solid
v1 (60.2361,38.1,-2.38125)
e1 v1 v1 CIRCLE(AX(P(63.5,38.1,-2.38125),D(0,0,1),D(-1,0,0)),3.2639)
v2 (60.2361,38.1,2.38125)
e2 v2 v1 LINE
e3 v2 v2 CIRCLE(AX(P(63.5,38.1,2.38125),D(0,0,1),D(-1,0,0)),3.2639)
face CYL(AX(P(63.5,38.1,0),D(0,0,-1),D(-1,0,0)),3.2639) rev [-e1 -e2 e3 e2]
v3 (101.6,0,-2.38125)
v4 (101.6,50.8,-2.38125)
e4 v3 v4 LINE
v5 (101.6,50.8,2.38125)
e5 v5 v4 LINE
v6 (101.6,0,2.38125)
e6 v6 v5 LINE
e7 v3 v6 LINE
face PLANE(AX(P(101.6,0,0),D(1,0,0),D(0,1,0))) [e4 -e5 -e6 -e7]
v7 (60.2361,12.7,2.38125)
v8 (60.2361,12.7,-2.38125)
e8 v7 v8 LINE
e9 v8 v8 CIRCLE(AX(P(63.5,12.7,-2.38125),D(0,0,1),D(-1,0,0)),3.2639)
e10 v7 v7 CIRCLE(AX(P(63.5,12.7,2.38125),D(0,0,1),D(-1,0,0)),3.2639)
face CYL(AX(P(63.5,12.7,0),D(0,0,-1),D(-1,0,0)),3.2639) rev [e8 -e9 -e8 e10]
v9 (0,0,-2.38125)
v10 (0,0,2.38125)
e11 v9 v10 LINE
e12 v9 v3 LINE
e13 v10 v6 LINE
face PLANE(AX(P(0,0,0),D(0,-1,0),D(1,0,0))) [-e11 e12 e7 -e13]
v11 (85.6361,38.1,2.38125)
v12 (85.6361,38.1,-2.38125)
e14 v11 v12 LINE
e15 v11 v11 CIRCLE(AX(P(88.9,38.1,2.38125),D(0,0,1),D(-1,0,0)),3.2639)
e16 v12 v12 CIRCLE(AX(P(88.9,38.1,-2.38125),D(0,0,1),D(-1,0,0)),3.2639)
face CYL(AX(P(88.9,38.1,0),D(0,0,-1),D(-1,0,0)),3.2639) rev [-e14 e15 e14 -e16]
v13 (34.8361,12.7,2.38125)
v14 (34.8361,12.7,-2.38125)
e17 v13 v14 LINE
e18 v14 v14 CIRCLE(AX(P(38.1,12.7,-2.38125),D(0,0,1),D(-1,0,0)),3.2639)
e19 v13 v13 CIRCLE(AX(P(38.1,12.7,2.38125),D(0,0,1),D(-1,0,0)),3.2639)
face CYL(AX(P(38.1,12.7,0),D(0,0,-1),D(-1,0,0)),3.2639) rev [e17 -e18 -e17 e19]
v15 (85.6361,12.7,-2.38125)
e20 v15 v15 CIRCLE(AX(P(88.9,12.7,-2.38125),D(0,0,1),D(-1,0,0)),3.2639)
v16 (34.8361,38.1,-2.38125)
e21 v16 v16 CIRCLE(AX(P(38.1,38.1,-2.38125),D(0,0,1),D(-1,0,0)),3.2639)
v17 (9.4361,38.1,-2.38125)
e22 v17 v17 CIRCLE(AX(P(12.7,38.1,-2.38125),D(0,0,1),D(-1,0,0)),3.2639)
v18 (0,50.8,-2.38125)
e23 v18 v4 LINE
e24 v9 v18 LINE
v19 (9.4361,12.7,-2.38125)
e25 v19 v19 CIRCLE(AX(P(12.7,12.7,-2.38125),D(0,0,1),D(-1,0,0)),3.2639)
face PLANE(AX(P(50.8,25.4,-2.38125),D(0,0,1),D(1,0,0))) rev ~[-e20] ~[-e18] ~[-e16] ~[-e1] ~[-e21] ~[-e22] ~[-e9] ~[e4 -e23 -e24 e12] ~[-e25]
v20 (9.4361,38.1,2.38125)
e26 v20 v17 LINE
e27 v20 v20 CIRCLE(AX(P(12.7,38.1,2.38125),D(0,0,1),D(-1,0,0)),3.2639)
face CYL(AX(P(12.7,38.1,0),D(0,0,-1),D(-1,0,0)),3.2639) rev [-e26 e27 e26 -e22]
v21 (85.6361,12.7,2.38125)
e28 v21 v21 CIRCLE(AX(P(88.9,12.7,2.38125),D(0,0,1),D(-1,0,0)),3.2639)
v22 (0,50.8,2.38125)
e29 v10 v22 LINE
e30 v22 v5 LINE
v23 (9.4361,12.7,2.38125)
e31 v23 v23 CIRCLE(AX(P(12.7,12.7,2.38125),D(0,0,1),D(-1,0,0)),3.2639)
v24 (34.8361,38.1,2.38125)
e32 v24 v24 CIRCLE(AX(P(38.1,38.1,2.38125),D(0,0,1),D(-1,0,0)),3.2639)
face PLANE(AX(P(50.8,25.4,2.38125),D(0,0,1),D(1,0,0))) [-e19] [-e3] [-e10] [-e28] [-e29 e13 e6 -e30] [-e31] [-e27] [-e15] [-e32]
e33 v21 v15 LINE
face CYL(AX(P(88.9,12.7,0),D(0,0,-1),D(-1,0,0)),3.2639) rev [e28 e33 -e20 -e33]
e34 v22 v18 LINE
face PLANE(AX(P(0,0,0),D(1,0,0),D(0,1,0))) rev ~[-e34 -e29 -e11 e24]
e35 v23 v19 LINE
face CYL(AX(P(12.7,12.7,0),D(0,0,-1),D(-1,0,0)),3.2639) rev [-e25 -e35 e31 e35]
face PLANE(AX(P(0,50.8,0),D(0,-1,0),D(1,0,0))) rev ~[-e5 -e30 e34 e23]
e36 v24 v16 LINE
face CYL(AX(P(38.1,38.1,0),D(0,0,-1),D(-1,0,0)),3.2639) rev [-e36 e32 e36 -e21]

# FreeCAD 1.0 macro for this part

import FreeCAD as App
import Part
import Sketcher
Q = App.Units.Quantity

doc = App.newDocument("Part")
body = doc.addObject("PartDesign::Body", "Body")

sketch1 = doc.addObject("Sketcher::SketchObject", "Sketch")
body.addObject(sketch1)
sketch1.AttachmentSupport = (doc.XY_Plane, [""])
sketch1.MapMode = "FlatFace"
sketch1.addGeometry([
    Part.LineSegment(App.Vector(0, 50.8, 0), App.Vector(0, 0, 0)),
    Part.LineSegment(App.Vector(0, 0, 0), App.Vector(101.6, 0, 0)),
    Part.LineSegment(App.Vector(101.6, 0, 0), App.Vector(101.6, 50.8, 0)),
    Part.LineSegment(App.Vector(101.6, 50.8, 0), App.Vector(0, 50.8, 0)),
    Part.Circle(App.Vector(12.7, 12.7, 0), App.Vector(0, 0, 1), 3.3),
    Part.Circle(App.Vector(38.1, 12.7, 0), App.Vector(0, 0, 1), 3.3),
    Part.Circle(App.Vector(63.5, 12.7, 0), App.Vector(0, 0, 1), 3.3),
    Part.Circle(App.Vector(88.9, 12.7, 0), App.Vector(0, 0, 1), 3.3),
    Part.Circle(App.Vector(12.7, 38.1, 0), App.Vector(0, 0, 1), 3.3),
    Part.Circle(App.Vector(38.1, 38.1, 0), App.Vector(0, 0, 1), 3.3),
    Part.Circle(App.Vector(63.5, 38.1, 0), App.Vector(0, 0, 1), 3.3),
    Part.Circle(App.Vector(88.9, 38.1, 0), App.Vector(0, 0, 1), 3.3),
], False)
sketch1.addConstraint([
    Sketcher.Constraint("Coincident", 0, 2, 1, 1),
    Sketcher.Constraint("Coincident", 1, 2, 2, 1),
    Sketcher.Constraint("Coincident", 2, 2, 3, 1),
    Sketcher.Constraint("Coincident", 3, 2, 0, 1),
    Sketcher.Constraint("Vertical", 0),
    Sketcher.Constraint("Horizontal", 1),
    Sketcher.Constraint("Vertical", 2),
    Sketcher.Constraint("Horizontal", 3),
    Sketcher.Constraint("Coincident", 0, 2, -1, 1),
    Sketcher.Constraint("Equal", 4, 5),
    Sketcher.Constraint("Equal", 5, 6),
    Sketcher.Constraint("Equal", 6, 7),
    Sketcher.Constraint("Equal", 7, 8),
    Sketcher.Constraint("Equal", 8, 9),
    Sketcher.Constraint("Equal", 9, 10),
    Sketcher.Constraint("Equal", 10, 11),
    Sketcher.Constraint("Horizontal", 4, 3, 5, 3),
    Sketcher.Constraint("Horizontal", 5, 3, 6, 3),
    Sketcher.Constraint("Horizontal", 6, 3, 7, 3),
    Sketcher.Constraint("Horizontal", 8, 3, 9, 3),
    Sketcher.Constraint("Horizontal", 9, 3, 10, 3),
    Sketcher.Constraint("Horizontal", 10, 3, 11, 3),
    Sketcher.Constraint("Vertical", 4, 3, 8, 3),
    Sketcher.Constraint("Vertical", 5, 3, 9, 3),
    Sketcher.Constraint("Vertical", 6, 3, 10, 3),
    Sketcher.Constraint("Vertical", 7, 3, 11, 3),
    Sketcher.Constraint("DistanceX", 1, 1, 1, 2, Q("4 in")),
    Sketcher.Constraint("DistanceY", 0, 2, 0, 1, Q("2 in")),
    Sketcher.Constraint("Diameter", 4, Q("0.257 in")),
    Sketcher.Constraint("DistanceX", 4, 3, 5, 3, Q("1 in")),
    Sketcher.Constraint("DistanceX", 5, 3, 6, 3, Q("1 in")),
    Sketcher.Constraint("DistanceX", 6, 3, 7, 3, Q("1 in")),
    Sketcher.Constraint("DistanceY", 4, 3, 8, 3, Q("1 in")),
    Sketcher.Constraint("DistanceX", -1, 1, 4, 3, Q("0.5 in")),
    Sketcher.Constraint("DistanceY", -1, 1, 4, 3, Q("0.5 in")),
])
pad1 = doc.addObject("PartDesign::Pad", "Pad")
body.addObject(pad1)
pad1.Profile = sketch1
pad1.Length = Q("0.1875 in")
pad1.Midplane = True

doc.recompute()
